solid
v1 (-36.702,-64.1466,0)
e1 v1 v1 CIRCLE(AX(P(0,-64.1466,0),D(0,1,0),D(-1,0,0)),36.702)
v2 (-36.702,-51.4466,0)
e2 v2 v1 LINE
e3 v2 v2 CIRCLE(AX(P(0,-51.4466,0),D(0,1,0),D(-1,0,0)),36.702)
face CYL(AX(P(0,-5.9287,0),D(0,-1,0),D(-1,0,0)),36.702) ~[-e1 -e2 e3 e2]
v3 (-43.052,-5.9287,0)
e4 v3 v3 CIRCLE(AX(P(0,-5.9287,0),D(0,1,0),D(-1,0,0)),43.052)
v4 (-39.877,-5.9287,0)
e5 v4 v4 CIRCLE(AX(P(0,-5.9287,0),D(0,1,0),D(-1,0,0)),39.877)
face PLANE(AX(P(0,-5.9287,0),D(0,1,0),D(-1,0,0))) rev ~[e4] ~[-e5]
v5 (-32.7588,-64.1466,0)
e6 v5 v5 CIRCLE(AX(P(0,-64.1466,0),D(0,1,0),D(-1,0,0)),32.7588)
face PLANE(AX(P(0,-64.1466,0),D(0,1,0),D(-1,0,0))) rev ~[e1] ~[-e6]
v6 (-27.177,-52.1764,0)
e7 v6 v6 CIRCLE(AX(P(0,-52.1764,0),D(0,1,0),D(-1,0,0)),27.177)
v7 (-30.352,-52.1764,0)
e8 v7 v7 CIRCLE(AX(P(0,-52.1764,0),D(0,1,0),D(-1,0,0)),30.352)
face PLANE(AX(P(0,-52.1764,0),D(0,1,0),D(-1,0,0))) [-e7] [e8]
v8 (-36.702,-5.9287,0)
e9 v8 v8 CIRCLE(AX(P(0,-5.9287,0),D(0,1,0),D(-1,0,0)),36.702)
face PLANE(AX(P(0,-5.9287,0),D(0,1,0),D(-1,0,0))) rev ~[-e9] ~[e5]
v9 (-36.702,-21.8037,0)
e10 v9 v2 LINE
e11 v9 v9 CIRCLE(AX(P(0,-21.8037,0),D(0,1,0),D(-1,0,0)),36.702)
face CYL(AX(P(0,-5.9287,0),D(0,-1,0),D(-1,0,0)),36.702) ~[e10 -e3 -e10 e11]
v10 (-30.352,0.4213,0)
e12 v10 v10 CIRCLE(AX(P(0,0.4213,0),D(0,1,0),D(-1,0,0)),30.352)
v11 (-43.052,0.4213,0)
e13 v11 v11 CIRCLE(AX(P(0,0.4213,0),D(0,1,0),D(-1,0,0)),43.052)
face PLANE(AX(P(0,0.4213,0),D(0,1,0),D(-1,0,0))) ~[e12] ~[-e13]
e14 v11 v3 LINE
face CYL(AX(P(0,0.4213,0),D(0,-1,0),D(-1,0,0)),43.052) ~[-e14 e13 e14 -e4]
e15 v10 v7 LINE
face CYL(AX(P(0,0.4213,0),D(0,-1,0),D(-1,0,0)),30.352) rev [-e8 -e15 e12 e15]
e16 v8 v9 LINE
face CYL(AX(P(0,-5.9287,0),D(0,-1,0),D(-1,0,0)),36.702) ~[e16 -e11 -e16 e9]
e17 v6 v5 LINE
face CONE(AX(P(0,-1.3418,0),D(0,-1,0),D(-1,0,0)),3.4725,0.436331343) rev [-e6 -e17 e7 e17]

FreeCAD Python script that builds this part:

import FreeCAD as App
import Part
import Sketcher
Q = App.Units.Quantity


def add_polygon(sketch, points):
    """Adds a closed chain of lines whose ends are joined by coincident constraints."""
    first, n = sketch.GeometryCount, len(points)
    for a, b in zip(points, points[1:] + points[:1]):
        sketch.addGeometry(Part.LineSegment(App.Vector(*a, 0), App.Vector(*b, 0)), False)
    for i in range(n):
        sketch.addConstraint(Sketcher.Constraint("Coincident", first + i, 2, first + (i + 1) % n, 1))

doc = App.newDocument("Part")
body = doc.addObject("PartDesign::Body", "Body")

# Sketch on XY plane
sketch1 = body.newObject("Sketcher::SketchObject", "Sketch")
sketch1.AttachmentSupport = (doc.getObject("XY_Plane"), [""])
sketch1.MapMode = "FlatFace"
add_polygon(sketch1, [(-32.758788, -64.146606), (-27.177, -52.1764), (-30.352, -52.1764), (-30.352, 0.4213), (-43.052, 0.4213), (-43.052, -5.9287), (-36.702, -5.9287), (-36.702, -64.1466)])  # lines 0-7
sketch1.addConstraint([
    Sketcher.Constraint("Horizontal", 1),
    Sketcher.Constraint("Vertical", 2),
    Sketcher.Constraint("Horizontal", 3),
    Sketcher.Constraint("Vertical", 4),
    Sketcher.Constraint("Horizontal", 5),
    Sketcher.Constraint("Vertical", 6),
    Sketcher.Constraint("Horizontal", 7),
    Sketcher.Constraint("Equal", 5, 4),
    Sketcher.Constraint("DistanceX", 3, 2, 3, 1, Q("0.5 in")),
    Sketcher.Constraint("DistanceX", 5, 1, 5, 2, Q("0.25 in")),
    Sketcher.Constraint("DistanceX", 1, 2, 1, 1, Q("0.125 in")),
    Sketcher.Constraint("Angle", 0, Q("65 deg")),
    Sketcher.Constraint("DistanceY", 6, 2, 6, 1, Q("58.218 mm")),
    Sketcher.Constraint("DistanceX", 7, 1, 7, 2, Q("3.9432 mm")),
    Sketcher.Constraint("DistanceY", 0, 2, -1, 1, Q("2.0542 in")),
    Sketcher.Constraint("DistanceX", 0, 2, -1, 1, Q("27.177 mm")),
])
revolution = body.newObject("PartDesign::Revolution", "Revolution")
revolution.Profile = sketch1
revolution.ReferenceAxis = (sketch1, ["V_Axis"])
revolution.Angle = 360

doc.recompute()
